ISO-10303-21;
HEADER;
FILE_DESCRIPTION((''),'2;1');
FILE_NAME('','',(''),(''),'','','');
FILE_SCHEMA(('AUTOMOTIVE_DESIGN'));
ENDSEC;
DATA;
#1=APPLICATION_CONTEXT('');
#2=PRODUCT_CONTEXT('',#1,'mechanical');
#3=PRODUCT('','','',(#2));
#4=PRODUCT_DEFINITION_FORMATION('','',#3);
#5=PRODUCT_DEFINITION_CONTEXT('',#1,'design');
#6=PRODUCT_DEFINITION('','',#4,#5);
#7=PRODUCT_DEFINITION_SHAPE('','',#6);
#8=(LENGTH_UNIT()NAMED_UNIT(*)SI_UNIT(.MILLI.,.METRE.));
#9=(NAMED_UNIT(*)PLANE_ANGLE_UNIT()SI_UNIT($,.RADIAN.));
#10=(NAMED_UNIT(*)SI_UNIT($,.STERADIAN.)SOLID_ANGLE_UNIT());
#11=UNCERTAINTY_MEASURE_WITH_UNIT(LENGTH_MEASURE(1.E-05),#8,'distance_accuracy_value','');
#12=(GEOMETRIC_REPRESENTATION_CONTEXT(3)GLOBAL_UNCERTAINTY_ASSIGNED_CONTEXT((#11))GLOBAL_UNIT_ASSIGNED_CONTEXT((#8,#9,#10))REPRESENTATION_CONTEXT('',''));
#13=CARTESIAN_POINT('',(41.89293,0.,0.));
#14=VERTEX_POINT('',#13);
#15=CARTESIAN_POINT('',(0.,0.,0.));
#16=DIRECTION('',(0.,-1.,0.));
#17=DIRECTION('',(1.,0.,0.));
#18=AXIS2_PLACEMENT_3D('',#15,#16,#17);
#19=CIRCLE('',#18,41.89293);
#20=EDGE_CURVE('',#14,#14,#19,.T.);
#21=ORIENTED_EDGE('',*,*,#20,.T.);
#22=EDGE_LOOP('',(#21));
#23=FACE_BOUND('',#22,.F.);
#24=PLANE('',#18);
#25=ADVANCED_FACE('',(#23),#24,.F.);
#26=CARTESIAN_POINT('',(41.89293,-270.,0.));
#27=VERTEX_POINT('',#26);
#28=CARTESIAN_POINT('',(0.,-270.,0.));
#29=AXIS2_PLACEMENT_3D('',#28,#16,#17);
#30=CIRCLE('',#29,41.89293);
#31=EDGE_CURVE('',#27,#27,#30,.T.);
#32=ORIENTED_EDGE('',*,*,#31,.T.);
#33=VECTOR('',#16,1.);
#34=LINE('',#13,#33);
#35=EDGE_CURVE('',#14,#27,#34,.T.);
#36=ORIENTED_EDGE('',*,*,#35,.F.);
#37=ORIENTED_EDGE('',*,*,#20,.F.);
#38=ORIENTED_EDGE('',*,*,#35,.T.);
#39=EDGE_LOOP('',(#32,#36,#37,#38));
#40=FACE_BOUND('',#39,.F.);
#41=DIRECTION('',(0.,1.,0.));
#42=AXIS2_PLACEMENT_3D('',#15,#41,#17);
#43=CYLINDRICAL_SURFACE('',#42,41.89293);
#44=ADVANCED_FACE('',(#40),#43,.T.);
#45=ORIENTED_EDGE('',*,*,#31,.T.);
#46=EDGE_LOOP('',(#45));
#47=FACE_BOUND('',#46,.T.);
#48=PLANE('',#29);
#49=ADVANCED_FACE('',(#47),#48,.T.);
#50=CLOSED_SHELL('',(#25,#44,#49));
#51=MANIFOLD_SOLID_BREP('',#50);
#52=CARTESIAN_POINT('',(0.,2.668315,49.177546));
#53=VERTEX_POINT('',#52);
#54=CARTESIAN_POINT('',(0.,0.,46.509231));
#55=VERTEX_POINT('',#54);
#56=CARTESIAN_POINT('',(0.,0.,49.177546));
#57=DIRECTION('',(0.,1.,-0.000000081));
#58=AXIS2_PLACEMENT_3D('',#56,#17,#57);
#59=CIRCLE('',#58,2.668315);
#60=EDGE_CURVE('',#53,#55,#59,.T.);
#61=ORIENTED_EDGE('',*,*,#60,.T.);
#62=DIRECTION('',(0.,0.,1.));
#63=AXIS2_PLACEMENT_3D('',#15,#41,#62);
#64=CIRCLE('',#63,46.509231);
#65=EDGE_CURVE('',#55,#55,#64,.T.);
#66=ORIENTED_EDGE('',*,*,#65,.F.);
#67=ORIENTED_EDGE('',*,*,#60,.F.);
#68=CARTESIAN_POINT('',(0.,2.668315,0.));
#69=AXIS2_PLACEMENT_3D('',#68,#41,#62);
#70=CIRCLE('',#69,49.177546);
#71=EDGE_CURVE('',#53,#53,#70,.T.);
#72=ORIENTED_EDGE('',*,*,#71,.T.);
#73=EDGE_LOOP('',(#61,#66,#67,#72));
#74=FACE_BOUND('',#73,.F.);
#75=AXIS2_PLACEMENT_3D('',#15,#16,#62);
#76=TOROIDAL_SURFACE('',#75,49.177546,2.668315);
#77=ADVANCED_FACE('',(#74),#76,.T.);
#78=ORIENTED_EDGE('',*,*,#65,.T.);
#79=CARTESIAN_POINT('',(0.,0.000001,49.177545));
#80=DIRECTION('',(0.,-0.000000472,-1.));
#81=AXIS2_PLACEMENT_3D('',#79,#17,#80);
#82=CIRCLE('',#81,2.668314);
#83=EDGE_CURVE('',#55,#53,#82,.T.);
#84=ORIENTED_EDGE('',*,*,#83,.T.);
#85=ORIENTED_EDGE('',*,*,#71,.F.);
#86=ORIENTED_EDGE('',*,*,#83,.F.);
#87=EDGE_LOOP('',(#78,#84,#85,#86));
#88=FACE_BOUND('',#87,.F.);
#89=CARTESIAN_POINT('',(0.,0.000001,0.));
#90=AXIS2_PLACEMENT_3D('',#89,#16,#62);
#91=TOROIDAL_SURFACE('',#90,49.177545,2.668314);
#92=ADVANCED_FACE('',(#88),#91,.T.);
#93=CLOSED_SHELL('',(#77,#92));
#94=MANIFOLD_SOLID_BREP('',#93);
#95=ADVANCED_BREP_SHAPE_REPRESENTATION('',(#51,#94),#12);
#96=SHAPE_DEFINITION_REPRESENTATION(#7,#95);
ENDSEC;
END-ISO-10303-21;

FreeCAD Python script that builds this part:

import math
import FreeCAD as App
import Part
import Sketcher

V = App.Vector

doc = App.newDocument("Part")
body = doc.addObject("PartDesign::Body", "Body")

# Sketch on XZ plane
sketch1 = doc.addObject("Sketcher::SketchObject", "Sketch")
body.addObject(sketch1)
sketch1.AttachmentSupport = (doc.XZ_Plane, [""])
sketch1.MapMode = "FlatFace"
sketch1.addGeometry(Part.Circle(V(0, 0, 0), V(0, 0, 1), 42), False)
sketch1.addConstraint([
    Sketcher.Constraint("Coincident", 0, 3, -1, 1),
    Sketcher.Constraint("Diameter", 0, 83.78586),
])
pad1 = doc.addObject("PartDesign::Pad", "Pad")
body.addObject(pad1)
pad1.Profile = sketch1
pad1.Length = 270
body2 = doc.addObject("PartDesign::Body", "Body001")

# Sketch on YZ plane
sketch2 = doc.addObject("Sketcher::SketchObject", "Sketch001")
body2.addObject(sketch2)
sketch2.AttachmentSupport = (doc.getObject("YZ_Plane001"), [""])
sketch2.MapMode = "FlatFace"
sketch2.addGeometry([
    Part.ArcOfCircle(Part.Circle(V(0, 49.2, 0), V(0, 0, 1), 2.7), math.radians(-90), math.radians(0)),
    Part.ArcOfCircle(Part.Circle(V(0, 49.2, 0), V(0, 0, 1), 2.7), math.radians(0), math.radians(270)),
], False)
sketch2.addConstraint([
    Sketcher.Constraint("Tangent", 0, 1, 1, 2),
    Sketcher.Constraint("Coincident", 1, 1, 0, 2),
    Sketcher.Constraint("PointOnObject", 0, 3, -2),
    Sketcher.Constraint("PointOnObject", 0, 1, -2),
    Sketcher.Constraint("Horizontal", 0, 3, 1, 1),
    Sketcher.Constraint("Radius", 0, 2.668314),
    Sketcher.Constraint("DistanceY", -1, 1, 0, 1, 46.509231),
])
revolution = doc.addObject("PartDesign::Revolution", "Revolution")
body2.addObject(revolution)
revolution.Profile = sketch2
revolution.ReferenceAxis = (sketch2, ["H_Axis"])
revolution.Angle = 360

doc.recompute()
